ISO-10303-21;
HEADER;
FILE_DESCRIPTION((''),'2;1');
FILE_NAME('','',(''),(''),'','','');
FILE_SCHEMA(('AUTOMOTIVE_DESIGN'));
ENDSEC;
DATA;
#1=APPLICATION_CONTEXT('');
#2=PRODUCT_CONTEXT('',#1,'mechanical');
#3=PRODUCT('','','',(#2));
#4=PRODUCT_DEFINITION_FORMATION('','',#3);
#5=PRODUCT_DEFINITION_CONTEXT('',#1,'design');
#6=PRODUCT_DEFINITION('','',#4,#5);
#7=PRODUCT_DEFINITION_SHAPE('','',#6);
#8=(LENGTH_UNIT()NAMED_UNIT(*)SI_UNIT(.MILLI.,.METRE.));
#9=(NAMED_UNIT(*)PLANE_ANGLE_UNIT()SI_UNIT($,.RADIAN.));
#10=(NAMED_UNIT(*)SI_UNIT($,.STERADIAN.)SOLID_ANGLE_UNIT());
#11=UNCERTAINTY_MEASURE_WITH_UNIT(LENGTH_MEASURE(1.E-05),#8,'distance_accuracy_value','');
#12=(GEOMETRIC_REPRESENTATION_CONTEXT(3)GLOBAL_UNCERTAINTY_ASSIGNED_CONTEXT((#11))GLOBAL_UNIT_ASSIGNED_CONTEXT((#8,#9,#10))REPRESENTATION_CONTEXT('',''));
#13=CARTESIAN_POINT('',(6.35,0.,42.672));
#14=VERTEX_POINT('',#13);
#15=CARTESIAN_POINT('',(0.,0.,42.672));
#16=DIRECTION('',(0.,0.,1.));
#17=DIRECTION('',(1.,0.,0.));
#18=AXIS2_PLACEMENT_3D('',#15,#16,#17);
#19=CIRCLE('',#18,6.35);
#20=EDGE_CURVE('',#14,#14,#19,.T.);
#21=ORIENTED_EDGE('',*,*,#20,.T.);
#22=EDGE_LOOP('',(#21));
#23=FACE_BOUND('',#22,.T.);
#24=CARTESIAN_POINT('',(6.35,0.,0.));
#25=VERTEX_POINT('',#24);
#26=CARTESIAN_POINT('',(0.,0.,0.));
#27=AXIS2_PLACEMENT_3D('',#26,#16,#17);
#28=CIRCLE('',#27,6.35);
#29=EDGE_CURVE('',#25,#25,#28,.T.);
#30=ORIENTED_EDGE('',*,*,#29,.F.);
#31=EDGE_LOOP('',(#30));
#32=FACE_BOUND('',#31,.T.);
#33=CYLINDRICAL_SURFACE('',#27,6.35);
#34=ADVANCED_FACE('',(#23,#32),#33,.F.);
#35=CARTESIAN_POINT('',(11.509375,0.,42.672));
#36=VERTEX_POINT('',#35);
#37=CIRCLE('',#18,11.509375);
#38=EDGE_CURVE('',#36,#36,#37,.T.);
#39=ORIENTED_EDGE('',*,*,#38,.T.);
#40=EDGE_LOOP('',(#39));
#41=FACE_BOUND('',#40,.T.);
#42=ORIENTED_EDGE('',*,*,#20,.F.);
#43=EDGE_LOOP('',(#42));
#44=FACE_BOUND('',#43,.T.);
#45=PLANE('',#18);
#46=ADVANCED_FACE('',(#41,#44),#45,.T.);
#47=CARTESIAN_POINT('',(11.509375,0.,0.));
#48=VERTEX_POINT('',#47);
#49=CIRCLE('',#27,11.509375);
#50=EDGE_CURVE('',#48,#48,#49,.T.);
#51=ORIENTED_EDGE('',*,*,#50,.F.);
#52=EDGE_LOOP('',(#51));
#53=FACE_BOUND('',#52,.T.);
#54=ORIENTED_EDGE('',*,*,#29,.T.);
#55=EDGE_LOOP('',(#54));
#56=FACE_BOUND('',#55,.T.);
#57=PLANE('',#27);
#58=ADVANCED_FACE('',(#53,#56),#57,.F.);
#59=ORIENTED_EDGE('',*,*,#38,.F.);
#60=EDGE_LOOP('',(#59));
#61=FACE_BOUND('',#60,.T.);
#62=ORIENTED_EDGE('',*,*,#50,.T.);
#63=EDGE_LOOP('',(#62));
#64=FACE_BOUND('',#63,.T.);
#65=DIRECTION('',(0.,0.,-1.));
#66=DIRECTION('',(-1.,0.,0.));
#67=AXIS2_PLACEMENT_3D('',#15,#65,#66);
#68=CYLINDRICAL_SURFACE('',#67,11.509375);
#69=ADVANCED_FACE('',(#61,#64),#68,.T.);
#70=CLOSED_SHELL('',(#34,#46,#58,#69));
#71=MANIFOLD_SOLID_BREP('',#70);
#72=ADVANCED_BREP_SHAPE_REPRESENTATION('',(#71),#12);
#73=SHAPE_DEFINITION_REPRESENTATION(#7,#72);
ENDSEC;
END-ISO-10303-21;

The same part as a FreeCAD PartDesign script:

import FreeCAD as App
import Part
import Sketcher

V = App.Vector
Q = App.Units.Quantity

doc = App.newDocument("Part")
body = doc.addObject("PartDesign::Body", "Body")

sketch1 = body.newObject("Sketcher::SketchObject", "Sketch")
sketch1.AttachmentSupport = (doc.getObject("XY_Plane"), [""])
sketch1.MapMode = "FlatFace"
sketch1.addGeometry(Part.Circle(V(0, 0, 0), V(0, 0, 1), 12), False)
sketch1.addConstraint([
    Sketcher.Constraint("Coincident", 0, 3, -1, 1),
    Sketcher.Constraint("Diameter", 0, Q("0.90625 in")),
])
pad1 = body.newObject("PartDesign::Pad", "Pad")
pad1.Profile = sketch1
pad1.Length = Q("1.68 in")

sketch2 = body.newObject("Sketcher::SketchObject", "Sketch001")
sketch2.AttachmentSupport = (doc.getObject("XY_Plane"), [""])
sketch2.MapMode = "FlatFace"
sketch2.AttachmentOffset = App.Placement(V(0, 0, 1.68 * 25.4), App.Rotation())
sketch2.addGeometry(Part.Circle(V(0, 0, 0), V(0, 0, 1), 6), False)
sketch2.addConstraint([
    Sketcher.Constraint("Coincident", 0, 3, -1, 1),
    Sketcher.Constraint("Diameter", 0, Q("0.5 in")),
])
pocket1 = body.newObject("PartDesign::Pocket", "Pocket")
pocket1.Profile = sketch2
pocket1.Type = "ThroughAll"
pocket1.Midplane = True

doc.recompute()
